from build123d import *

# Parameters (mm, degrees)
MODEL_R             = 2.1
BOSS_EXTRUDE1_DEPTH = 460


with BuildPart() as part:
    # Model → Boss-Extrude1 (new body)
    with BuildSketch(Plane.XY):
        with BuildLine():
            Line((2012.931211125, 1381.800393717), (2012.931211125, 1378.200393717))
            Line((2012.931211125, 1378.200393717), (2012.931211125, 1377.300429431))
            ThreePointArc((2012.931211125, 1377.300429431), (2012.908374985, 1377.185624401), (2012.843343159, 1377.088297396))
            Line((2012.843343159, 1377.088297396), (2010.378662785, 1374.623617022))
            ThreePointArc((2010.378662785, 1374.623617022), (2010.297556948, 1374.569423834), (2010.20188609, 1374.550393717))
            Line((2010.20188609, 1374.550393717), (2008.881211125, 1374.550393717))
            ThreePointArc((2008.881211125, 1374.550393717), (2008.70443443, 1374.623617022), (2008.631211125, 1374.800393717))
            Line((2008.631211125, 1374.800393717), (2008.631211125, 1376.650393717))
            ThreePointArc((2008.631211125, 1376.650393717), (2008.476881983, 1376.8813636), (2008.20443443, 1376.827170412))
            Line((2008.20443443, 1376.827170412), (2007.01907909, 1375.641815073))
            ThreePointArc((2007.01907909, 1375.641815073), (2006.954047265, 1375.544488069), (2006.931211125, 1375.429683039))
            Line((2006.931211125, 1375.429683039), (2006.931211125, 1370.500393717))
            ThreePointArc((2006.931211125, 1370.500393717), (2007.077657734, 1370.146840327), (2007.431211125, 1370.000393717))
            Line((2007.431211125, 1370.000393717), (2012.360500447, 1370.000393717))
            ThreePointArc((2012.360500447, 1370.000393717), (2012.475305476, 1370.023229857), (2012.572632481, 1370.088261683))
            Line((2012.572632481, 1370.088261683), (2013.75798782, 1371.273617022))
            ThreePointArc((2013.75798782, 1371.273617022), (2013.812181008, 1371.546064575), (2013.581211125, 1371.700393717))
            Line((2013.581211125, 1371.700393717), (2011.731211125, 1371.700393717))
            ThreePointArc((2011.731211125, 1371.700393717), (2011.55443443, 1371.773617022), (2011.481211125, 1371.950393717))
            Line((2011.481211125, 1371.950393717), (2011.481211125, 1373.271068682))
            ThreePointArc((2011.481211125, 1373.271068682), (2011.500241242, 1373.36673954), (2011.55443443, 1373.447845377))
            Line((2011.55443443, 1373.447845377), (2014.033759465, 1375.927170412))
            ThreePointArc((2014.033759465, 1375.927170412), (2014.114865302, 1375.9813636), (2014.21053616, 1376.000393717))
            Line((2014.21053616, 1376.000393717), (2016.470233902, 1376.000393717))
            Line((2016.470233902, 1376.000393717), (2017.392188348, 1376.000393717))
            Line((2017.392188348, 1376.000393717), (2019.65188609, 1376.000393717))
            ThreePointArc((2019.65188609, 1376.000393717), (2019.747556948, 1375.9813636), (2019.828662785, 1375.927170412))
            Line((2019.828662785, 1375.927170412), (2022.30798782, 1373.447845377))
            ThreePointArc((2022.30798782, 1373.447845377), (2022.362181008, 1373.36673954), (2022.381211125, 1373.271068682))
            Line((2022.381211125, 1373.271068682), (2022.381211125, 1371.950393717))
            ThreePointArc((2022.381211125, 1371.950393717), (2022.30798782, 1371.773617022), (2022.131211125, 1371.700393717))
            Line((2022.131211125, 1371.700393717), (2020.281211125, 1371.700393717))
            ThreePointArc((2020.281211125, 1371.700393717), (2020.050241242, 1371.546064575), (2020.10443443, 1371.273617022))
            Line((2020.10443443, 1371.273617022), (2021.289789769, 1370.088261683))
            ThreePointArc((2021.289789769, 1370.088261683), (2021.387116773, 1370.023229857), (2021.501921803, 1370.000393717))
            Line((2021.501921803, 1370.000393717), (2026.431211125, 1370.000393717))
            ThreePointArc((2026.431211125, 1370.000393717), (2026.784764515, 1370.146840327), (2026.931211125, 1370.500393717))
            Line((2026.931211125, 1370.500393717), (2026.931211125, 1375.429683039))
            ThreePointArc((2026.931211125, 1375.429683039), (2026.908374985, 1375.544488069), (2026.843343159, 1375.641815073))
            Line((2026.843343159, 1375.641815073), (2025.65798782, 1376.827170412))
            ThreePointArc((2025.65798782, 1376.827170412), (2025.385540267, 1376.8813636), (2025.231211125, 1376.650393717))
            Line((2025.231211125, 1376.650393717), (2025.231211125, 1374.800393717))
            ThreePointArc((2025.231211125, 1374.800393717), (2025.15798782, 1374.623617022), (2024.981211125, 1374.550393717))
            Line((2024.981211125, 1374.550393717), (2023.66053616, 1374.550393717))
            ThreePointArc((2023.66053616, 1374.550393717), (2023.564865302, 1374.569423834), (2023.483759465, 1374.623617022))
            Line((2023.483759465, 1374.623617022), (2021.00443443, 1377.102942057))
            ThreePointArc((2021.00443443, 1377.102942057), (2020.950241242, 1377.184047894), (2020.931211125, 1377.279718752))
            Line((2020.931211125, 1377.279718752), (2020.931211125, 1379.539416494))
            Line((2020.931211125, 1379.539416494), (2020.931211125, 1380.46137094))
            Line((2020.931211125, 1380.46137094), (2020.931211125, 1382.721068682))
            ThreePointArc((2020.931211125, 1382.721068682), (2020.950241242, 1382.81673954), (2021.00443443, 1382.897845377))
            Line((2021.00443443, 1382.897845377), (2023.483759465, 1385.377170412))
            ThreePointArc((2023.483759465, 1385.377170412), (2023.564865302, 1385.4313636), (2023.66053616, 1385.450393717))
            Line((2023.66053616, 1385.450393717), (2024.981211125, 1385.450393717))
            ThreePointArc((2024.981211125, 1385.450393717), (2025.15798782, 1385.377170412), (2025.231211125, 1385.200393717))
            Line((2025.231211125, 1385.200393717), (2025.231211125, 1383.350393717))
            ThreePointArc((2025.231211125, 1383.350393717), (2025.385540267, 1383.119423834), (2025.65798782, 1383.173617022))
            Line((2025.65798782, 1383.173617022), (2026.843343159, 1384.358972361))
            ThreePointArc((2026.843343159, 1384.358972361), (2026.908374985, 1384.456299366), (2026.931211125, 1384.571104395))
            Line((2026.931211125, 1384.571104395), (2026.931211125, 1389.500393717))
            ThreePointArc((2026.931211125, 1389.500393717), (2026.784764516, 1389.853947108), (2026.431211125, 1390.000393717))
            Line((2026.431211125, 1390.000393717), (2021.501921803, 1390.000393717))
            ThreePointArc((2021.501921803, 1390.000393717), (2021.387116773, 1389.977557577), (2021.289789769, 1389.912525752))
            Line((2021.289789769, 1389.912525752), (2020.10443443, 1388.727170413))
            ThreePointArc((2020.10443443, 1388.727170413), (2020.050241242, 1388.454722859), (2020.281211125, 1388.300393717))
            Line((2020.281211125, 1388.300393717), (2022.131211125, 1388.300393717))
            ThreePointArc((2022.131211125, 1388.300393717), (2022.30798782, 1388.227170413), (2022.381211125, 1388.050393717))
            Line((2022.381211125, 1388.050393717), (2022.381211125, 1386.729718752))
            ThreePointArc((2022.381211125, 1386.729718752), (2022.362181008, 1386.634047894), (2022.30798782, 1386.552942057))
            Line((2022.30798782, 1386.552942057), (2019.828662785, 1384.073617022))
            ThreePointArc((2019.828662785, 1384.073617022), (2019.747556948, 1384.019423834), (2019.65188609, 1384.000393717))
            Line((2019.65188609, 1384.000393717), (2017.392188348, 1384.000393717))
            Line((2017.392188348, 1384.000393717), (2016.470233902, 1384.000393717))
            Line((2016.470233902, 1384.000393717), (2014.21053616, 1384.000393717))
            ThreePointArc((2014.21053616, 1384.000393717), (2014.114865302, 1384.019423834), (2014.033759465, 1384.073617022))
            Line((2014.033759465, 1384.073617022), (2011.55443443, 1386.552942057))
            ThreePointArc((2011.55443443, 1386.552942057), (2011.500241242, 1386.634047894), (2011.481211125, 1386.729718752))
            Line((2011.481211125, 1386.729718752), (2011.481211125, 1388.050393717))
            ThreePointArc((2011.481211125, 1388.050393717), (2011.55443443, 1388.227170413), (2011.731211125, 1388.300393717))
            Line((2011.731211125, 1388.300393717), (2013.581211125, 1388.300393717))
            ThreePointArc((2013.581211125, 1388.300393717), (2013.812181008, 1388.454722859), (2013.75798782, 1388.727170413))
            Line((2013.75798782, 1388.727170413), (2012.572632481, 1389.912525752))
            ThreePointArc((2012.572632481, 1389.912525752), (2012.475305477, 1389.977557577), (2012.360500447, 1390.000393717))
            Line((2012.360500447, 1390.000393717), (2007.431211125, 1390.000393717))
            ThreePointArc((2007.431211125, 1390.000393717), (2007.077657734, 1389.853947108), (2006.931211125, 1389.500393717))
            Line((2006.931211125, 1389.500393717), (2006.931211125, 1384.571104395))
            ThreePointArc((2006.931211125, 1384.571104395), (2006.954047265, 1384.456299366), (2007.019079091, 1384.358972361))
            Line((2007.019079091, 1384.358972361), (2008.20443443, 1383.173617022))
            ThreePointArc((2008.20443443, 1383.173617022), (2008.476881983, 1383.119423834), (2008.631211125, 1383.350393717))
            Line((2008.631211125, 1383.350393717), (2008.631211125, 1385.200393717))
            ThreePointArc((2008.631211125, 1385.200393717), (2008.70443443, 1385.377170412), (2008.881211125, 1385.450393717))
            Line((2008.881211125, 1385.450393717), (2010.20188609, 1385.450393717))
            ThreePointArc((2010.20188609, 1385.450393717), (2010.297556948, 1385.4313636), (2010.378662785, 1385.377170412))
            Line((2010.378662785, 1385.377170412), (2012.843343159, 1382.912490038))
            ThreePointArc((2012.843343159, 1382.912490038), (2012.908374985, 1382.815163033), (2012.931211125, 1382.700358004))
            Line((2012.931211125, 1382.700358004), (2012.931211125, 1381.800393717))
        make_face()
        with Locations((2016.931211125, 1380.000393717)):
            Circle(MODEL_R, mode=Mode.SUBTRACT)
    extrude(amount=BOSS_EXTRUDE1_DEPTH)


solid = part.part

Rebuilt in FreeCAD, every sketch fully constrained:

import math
import FreeCAD as App
import Part
import Sketcher

doc = App.newDocument("Part")
body = doc.addObject("PartDesign::Body", "Body")

# Sketch on XY plane
sketch1 = body.newObject("Sketcher::SketchObject", "Sketch")
sketch1.AttachmentSupport = (doc.getObject("XY_Plane"), [""])
sketch1.MapMode = "FlatFace"
sketch1.addGeometry(Part.ArcOfCircle(Part.Circle(App.Vector(2012.631211, 1377.300429, 0), App.Vector(0, 0, 1), 0.3), math.radians(-45), math.radians(0)), False)
sketch1.addGeometry(Part.LineSegment(App.Vector(2012.843343, 1377.088297, 0), App.Vector(2010.378663, 1374.623617, 0)), False)
sketch1.addGeometry(Part.ArcOfCircle(Part.Circle(App.Vector(2010.201886, 1374.800394, 0), App.Vector(0, 0, 1), 0.25), math.radians(-90), math.radians(-45)), False)
sketch1.addGeometry(Part.LineSegment(App.Vector(2010.201886, 1374.550394, 0), App.Vector(2008.881211, 1374.550394, 0)), False)
sketch1.addGeometry(Part.ArcOfCircle(Part.Circle(App.Vector(2008.881211, 1374.800394, 0), App.Vector(0, 0, 1), 0.25), math.radians(-180), math.radians(-90)), False)
sketch1.addGeometry(Part.LineSegment(App.Vector(2008.631211, 1374.800394, 0), App.Vector(2008.631211, 1376.650394, 0)), False)
sketch1.addGeometry(Part.ArcOfCircle(Part.Circle(App.Vector(2008.381211, 1376.650394, 0), App.Vector(0, 0, 1), 0.25), math.radians(0), math.radians(135)), False)
sketch1.addGeometry(Part.LineSegment(App.Vector(2008.204434, 1376.82717, 0), App.Vector(2007.019079, 1375.641815, 0)), False)
sketch1.addGeometry(Part.ArcOfCircle(Part.Circle(App.Vector(2007.231211, 1375.429683, 0), App.Vector(0, 0, 1), 0.3), math.radians(135), math.radians(180)), False)
sketch1.addGeometry(Part.LineSegment(App.Vector(2006.931211, 1375.429683, 0), App.Vector(2006.931211, 1370.500394, 0)), False)
sketch1.addGeometry(Part.ArcOfCircle(Part.Circle(App.Vector(2007.431211, 1370.500394, 0), App.Vector(0, 0, 1), 0.5), math.radians(180), math.radians(270)), False)
sketch1.addGeometry(Part.LineSegment(App.Vector(2007.431211, 1370.000394, 0), App.Vector(2012.3605, 1370.000394, 0)), False)
sketch1.addGeometry(Part.ArcOfCircle(Part.Circle(App.Vector(2012.3605, 1370.300394, 0), App.Vector(0, 0, 1), 0.3), math.radians(-90), math.radians(-45)), False)
sketch1.addGeometry(Part.LineSegment(App.Vector(2012.572632, 1370.088262, 0), App.Vector(2013.757988, 1371.273617, 0)), False)
sketch1.addGeometry(Part.ArcOfCircle(Part.Circle(App.Vector(2013.581211, 1371.450394, 0), App.Vector(0, 0, 1), 0.25), math.radians(-45), math.radians(90)), False)
sketch1.addGeometry(Part.LineSegment(App.Vector(2013.581211, 1371.700394, 0), App.Vector(2011.731211, 1371.700394, 0)), False)
sketch1.addGeometry(Part.ArcOfCircle(Part.Circle(App.Vector(2011.731211, 1371.950394, 0), App.Vector(0, 0, 1), 0.25), math.radians(-180), math.radians(-90)), False)
sketch1.addGeometry(Part.LineSegment(App.Vector(2011.481211, 1371.950394, 0), App.Vector(2011.481211, 1373.271069, 0)), False)
sketch1.addGeometry(Part.ArcOfCircle(Part.Circle(App.Vector(2011.731211, 1373.271069, 0), App.Vector(0, 0, 1), 0.25), math.radians(135), math.radians(180)), False)
sketch1.addGeometry(Part.LineSegment(App.Vector(2011.554434, 1373.447845, 0), App.Vector(2014.033759, 1375.92717, 0)), False)
sketch1.addGeometry(Part.ArcOfCircle(Part.Circle(App.Vector(2014.210536, 1375.750394, 0), App.Vector(0, 0, 1), 0.25), math.radians(90), math.radians(135)), False)
sketch1.addGeometry(Part.LineSegment(App.Vector(2014.210536, 1376.000394, 0), App.Vector(2019.651886, 1376.000394, 0)), False)
sketch1.addGeometry(Part.ArcOfCircle(Part.Circle(App.Vector(2019.651886, 1375.750394, 0), App.Vector(0, 0, 1), 0.25), math.radians(45), math.radians(90)), False)
sketch1.addGeometry(Part.LineSegment(App.Vector(2019.828663, 1375.92717, 0), App.Vector(2022.307988, 1373.447845, 0)), False)
sketch1.addGeometry(Part.ArcOfCircle(Part.Circle(App.Vector(2022.131211, 1373.271069, 0), App.Vector(0, 0, 1), 0.25), math.radians(0), math.radians(45)), False)
sketch1.addGeometry(Part.LineSegment(App.Vector(2022.381211, 1373.271069, 0), App.Vector(2022.381211, 1371.950394, 0)), False)
sketch1.addGeometry(Part.ArcOfCircle(Part.Circle(App.Vector(2022.131211, 1371.950394, 0), App.Vector(0, 0, 1), 0.25), math.radians(-90), math.radians(0)), False)
sketch1.addGeometry(Part.LineSegment(App.Vector(2022.131211, 1371.700394, 0), App.Vector(2020.281211, 1371.700394, 0)), False)
sketch1.addGeometry(Part.ArcOfCircle(Part.Circle(App.Vector(2020.281211, 1371.450394, 0), App.Vector(0, 0, 1), 0.25), math.radians(90), math.radians(225)), False)
sketch1.addGeometry(Part.LineSegment(App.Vector(2020.104434, 1371.273617, 0), App.Vector(2021.28979, 1370.088262, 0)), False)
sketch1.addGeometry(Part.ArcOfCircle(Part.Circle(App.Vector(2021.501922, 1370.300394, 0), App.Vector(0, 0, 1), 0.3), math.radians(-135.000001), math.radians(-90)), False)
sketch1.addGeometry(Part.LineSegment(App.Vector(2021.501922, 1370.000394, 0), App.Vector(2026.431211, 1370.000394, 0)), False)
sketch1.addGeometry(Part.ArcOfCircle(Part.Circle(App.Vector(2026.431211, 1370.500394, 0), App.Vector(0, 0, 1), 0.5), math.radians(-90), math.radians(0)), False)
sketch1.addGeometry(Part.LineSegment(App.Vector(2026.931211, 1370.500394, 0), App.Vector(2026.931211, 1375.429683, 0)), False)
sketch1.addGeometry(Part.ArcOfCircle(Part.Circle(App.Vector(2026.631211, 1375.429683, 0), App.Vector(0, 0, 1), 0.3), math.radians(0), math.radians(45.000001)), False)
sketch1.addGeometry(Part.LineSegment(App.Vector(2026.843343, 1375.641815, 0), App.Vector(2025.657988, 1376.82717, 0)), False)
sketch1.addGeometry(Part.ArcOfCircle(Part.Circle(App.Vector(2025.481211, 1376.650394, 0), App.Vector(0, 0, 1), 0.25), math.radians(45), math.radians(180)), False)
sketch1.addGeometry(Part.LineSegment(App.Vector(2025.231211, 1376.650394, 0), App.Vector(2025.231211, 1374.800394, 0)), False)
sketch1.addGeometry(Part.ArcOfCircle(Part.Circle(App.Vector(2024.981211, 1374.800394, 0), App.Vector(0, 0, 1), 0.25), math.radians(-90), math.radians(0)), False)
sketch1.addGeometry(Part.LineSegment(App.Vector(2024.981211, 1374.550394, 0), App.Vector(2023.660536, 1374.550394, 0)), False)
sketch1.addGeometry(Part.ArcOfCircle(Part.Circle(App.Vector(2023.660536, 1374.800394, 0), App.Vector(0, 0, 1), 0.25), math.radians(-135), math.radians(-90)), False)
sketch1.addGeometry(Part.LineSegment(App.Vector(2023.483759, 1374.623617, 0), App.Vector(2021.004434, 1377.102942, 0)), False)
sketch1.addGeometry(Part.ArcOfCircle(Part.Circle(App.Vector(2021.181211, 1377.279719, 0), App.Vector(0, 0, 1), 0.25), math.radians(180), math.radians(225)), False)
sketch1.addGeometry(Part.LineSegment(App.Vector(2020.931211, 1377.279719, 0), App.Vector(2020.931211, 1382.721069, 0)), False)
sketch1.addGeometry(Part.ArcOfCircle(Part.Circle(App.Vector(2021.181211, 1382.721069, 0), App.Vector(0, 0, 1), 0.25), math.radians(135), math.radians(180)), False)
sketch1.addGeometry(Part.LineSegment(App.Vector(2021.004434, 1382.897845, 0), App.Vector(2023.483759, 1385.37717, 0)), False)
sketch1.addGeometry(Part.ArcOfCircle(Part.Circle(App.Vector(2023.660536, 1385.200394, 0), App.Vector(0, 0, 1), 0.25), math.radians(90), math.radians(135)), False)
sketch1.addGeometry(Part.LineSegment(App.Vector(2023.660536, 1385.450394, 0), App.Vector(2024.981211, 1385.450394, 0)), False)
sketch1.addGeometry(Part.ArcOfCircle(Part.Circle(App.Vector(2024.981211, 1385.200394, 0), App.Vector(0, 0, 1), 0.25), math.radians(0), math.radians(90)), False)
sketch1.addGeometry(Part.LineSegment(App.Vector(2025.231211, 1385.200394, 0), App.Vector(2025.231211, 1383.350394, 0)), False)
sketch1.addGeometry(Part.ArcOfCircle(Part.Circle(App.Vector(2025.481211, 1383.350394, 0), App.Vector(0, 0, 1), 0.25), math.radians(180), math.radians(315)), False)
sketch1.addGeometry(Part.LineSegment(App.Vector(2025.657988, 1383.173617, 0), App.Vector(2026.843343, 1384.358972, 0)), False)
sketch1.addGeometry(Part.ArcOfCircle(Part.Circle(App.Vector(2026.631211, 1384.571104, 0), App.Vector(0, 0, 1), 0.3), math.radians(-45), math.radians(0)), False)
sketch1.addGeometry(Part.LineSegment(App.Vector(2026.931211, 1384.571104, 0), App.Vector(2026.931211, 1389.500394, 0)), False)
sketch1.addGeometry(Part.ArcOfCircle(Part.Circle(App.Vector(2026.431211, 1389.500394, 0), App.Vector(0, 0, 1), 0.5), math.radians(0), math.radians(90)), False)
sketch1.addGeometry(Part.LineSegment(App.Vector(2026.431211, 1390.000394, 0), App.Vector(2021.501922, 1390.000394, 0)), False)
sketch1.addGeometry(Part.ArcOfCircle(Part.Circle(App.Vector(2021.501922, 1389.700394, 0), App.Vector(0, 0, 1), 0.3), math.radians(90), math.radians(135)), False)
sketch1.addGeometry(Part.LineSegment(App.Vector(2021.28979, 1389.912526, 0), App.Vector(2020.104434, 1388.72717, 0)), False)
sketch1.addGeometry(Part.ArcOfCircle(Part.Circle(App.Vector(2020.281211, 1388.550394, 0), App.Vector(0, 0, 1), 0.25), math.radians(135), math.radians(270)), False)
sketch1.addGeometry(Part.LineSegment(App.Vector(2020.281211, 1388.300394, 0), App.Vector(2022.131211, 1388.300394, 0)), False)
sketch1.addGeometry(Part.ArcOfCircle(Part.Circle(App.Vector(2022.131211, 1388.050394, 0), App.Vector(0, 0, 1), 0.25), math.radians(0), math.radians(90)), False)
sketch1.addGeometry(Part.LineSegment(App.Vector(2022.381211, 1388.050394, 0), App.Vector(2022.381211, 1386.729719, 0)), False)
sketch1.addGeometry(Part.ArcOfCircle(Part.Circle(App.Vector(2022.131211, 1386.729719, 0), App.Vector(0, 0, 1), 0.25), math.radians(-45), math.radians(0)), False)
sketch1.addGeometry(Part.LineSegment(App.Vector(2022.307988, 1386.552942, 0), App.Vector(2019.828663, 1384.073617, 0)), False)
sketch1.addGeometry(Part.ArcOfCircle(Part.Circle(App.Vector(2019.651886, 1384.250394, 0), App.Vector(0, 0, 1), 0.25), math.radians(-90), math.radians(-45)), False)
sketch1.addGeometry(Part.LineSegment(App.Vector(2019.651886, 1384.000394, 0), App.Vector(2014.210536, 1384.000394, 0)), False)
sketch1.addGeometry(Part.ArcOfCircle(Part.Circle(App.Vector(2014.210536, 1384.250394, 0), App.Vector(0, 0, 1), 0.25), math.radians(-135), math.radians(-90)), False)
sketch1.addGeometry(Part.LineSegment(App.Vector(2014.033759, 1384.073617, 0), App.Vector(2011.554434, 1386.552942, 0)), False)
sketch1.addGeometry(Part.ArcOfCircle(Part.Circle(App.Vector(2011.731211, 1386.729719, 0), App.Vector(0, 0, 1), 0.25), math.radians(180), math.radians(225)), False)
sketch1.addGeometry(Part.LineSegment(App.Vector(2011.481211, 1386.729719, 0), App.Vector(2011.481211, 1388.050394, 0)), False)
sketch1.addGeometry(Part.ArcOfCircle(Part.Circle(App.Vector(2011.731211, 1388.050394, 0), App.Vector(0, 0, 1), 0.25), math.radians(90), math.radians(180)), False)
sketch1.addGeometry(Part.LineSegment(App.Vector(2011.731211, 1388.300394, 0), App.Vector(2013.581211, 1388.300394, 0)), False)
sketch1.addGeometry(Part.ArcOfCircle(Part.Circle(App.Vector(2013.581211, 1388.550394, 0), App.Vector(0, 0, 1), 0.25), math.radians(-90), math.radians(45)), False)
sketch1.addGeometry(Part.LineSegment(App.Vector(2013.757988, 1388.72717, 0), App.Vector(2012.572632, 1389.912526, 0)), False)
sketch1.addGeometry(Part.ArcOfCircle(Part.Circle(App.Vector(2012.3605, 1389.700394, 0), App.Vector(0, 0, 1), 0.3), math.radians(45), math.radians(90)), False)
sketch1.addGeometry(Part.LineSegment(App.Vector(2012.3605, 1390.000394, 0), App.Vector(2007.431211, 1390.000394, 0)), False)
sketch1.addGeometry(Part.ArcOfCircle(Part.Circle(App.Vector(2007.431211, 1389.500394, 0), App.Vector(0, 0, 1), 0.5), math.radians(90), math.radians(180)), False)
sketch1.addGeometry(Part.LineSegment(App.Vector(2006.931211, 1389.500394, 0), App.Vector(2006.931211, 1384.571104, 0)), False)
sketch1.addGeometry(Part.ArcOfCircle(Part.Circle(App.Vector(2007.231211, 1384.571104, 0), App.Vector(0, 0, 1), 0.3), math.radians(180), math.radians(225)), False)
sketch1.addGeometry(Part.LineSegment(App.Vector(2007.019079, 1384.358972, 0), App.Vector(2008.204434, 1383.173617, 0)), False)
sketch1.addGeometry(Part.ArcOfCircle(Part.Circle(App.Vector(2008.381211, 1383.350394, 0), App.Vector(0, 0, 1), 0.25), math.radians(-135), math.radians(0)), False)
sketch1.addGeometry(Part.LineSegment(App.Vector(2008.631211, 1383.350394, 0), App.Vector(2008.631211, 1385.200394, 0)), False)
sketch1.addGeometry(Part.ArcOfCircle(Part.Circle(App.Vector(2008.881211, 1385.200394, 0), App.Vector(0, 0, 1), 0.25), math.radians(90), math.radians(180)), False)
sketch1.addGeometry(Part.LineSegment(App.Vector(2008.881211, 1385.450394, 0), App.Vector(2010.201886, 1385.450394, 0)), False)
sketch1.addGeometry(Part.ArcOfCircle(Part.Circle(App.Vector(2010.201886, 1385.200394, 0), App.Vector(0, 0, 1), 0.25), math.radians(45), math.radians(90)), False)
sketch1.addGeometry(Part.LineSegment(App.Vector(2010.378663, 1385.37717, 0), App.Vector(2012.843343, 1382.91249, 0)), False)
sketch1.addGeometry(Part.ArcOfCircle(Part.Circle(App.Vector(2012.631211, 1382.700358, 0), App.Vector(0, 0, 1), 0.3), math.radians(0), math.radians(45)), False)
sketch1.addGeometry(Part.LineSegment(App.Vector(2012.931211, 1382.700358, 0), App.Vector(2012.931211, 1377.300429, 0)), False)
sketch1.addGeometry(Part.Circle(App.Vector(2016.931211, 1380.000394, 0), App.Vector(0, 0, 1), 2.1), False)
sketch1.addConstraint(Sketcher.Constraint("Tangent", 0, 1, 1, 1))
sketch1.addConstraint(Sketcher.Constraint("Tangent", 1, 2, 2, 2))
sketch1.addConstraint(Sketcher.Constraint("Tangent", 2, 1, 3, 1))
sketch1.addConstraint(Sketcher.Constraint("Tangent", 3, 2, 4, 2))
sketch1.addConstraint(Sketcher.Constraint("Tangent", 4, 1, 5, 1))
sketch1.addConstraint(Sketcher.Constraint("Tangent", 5, 2, 6, 1))
sketch1.addConstraint(Sketcher.Constraint("Tangent", 6, 2, 7, 1))
sketch1.addConstraint(Sketcher.Constraint("Tangent", 7, 2, 8, 1))
sketch1.addConstraint(Sketcher.Constraint("Tangent", 8, 2, 9, 1))
sketch1.addConstraint(Sketcher.Constraint("Tangent", 9, 2, 10, 1))
sketch1.addConstraint(Sketcher.Constraint("Tangent", 10, 2, 11, 1))
sketch1.addConstraint(Sketcher.Constraint("Tangent", 11, 2, 12, 1))
sketch1.addConstraint(Sketcher.Constraint("Tangent", 12, 2, 13, 1))
sketch1.addConstraint(Sketcher.Constraint("Tangent", 13, 2, 14, 1))
sketch1.addConstraint(Sketcher.Constraint("Tangent", 14, 2, 15, 1))
sketch1.addConstraint(Sketcher.Constraint("Tangent", 15, 2, 16, 2))
sketch1.addConstraint(Sketcher.Constraint("Tangent", 16, 1, 17, 1))
sketch1.addConstraint(Sketcher.Constraint("Tangent", 17, 2, 18, 2))
sketch1.addConstraint(Sketcher.Constraint("Tangent", 18, 1, 19, 1))
sketch1.addConstraint(Sketcher.Constraint("Tangent", 19, 2, 20, 2))
sketch1.addConstraint(Sketcher.Constraint("Tangent", 20, 1, 21, 1))
sketch1.addConstraint(Sketcher.Constraint("Tangent", 21, 2, 22, 2))
sketch1.addConstraint(Sketcher.Constraint("Tangent", 22, 1, 23, 1))
sketch1.addConstraint(Sketcher.Constraint("Tangent", 23, 2, 24, 2))
sketch1.addConstraint(Sketcher.Constraint("Tangent", 24, 1, 25, 1))
sketch1.addConstraint(Sketcher.Constraint("Tangent", 25, 2, 26, 2))
sketch1.addConstraint(Sketcher.Constraint("Tangent", 26, 1, 27, 1))
sketch1.addConstraint(Sketcher.Constraint("Tangent", 27, 2, 28, 1))
sketch1.addConstraint(Sketcher.Constraint("Tangent", 28, 2, 29, 1))
sketch1.addConstraint(Sketcher.Constraint("Tangent", 29, 2, 30, 1))
sketch1.addConstraint(Sketcher.Constraint("Tangent", 30, 2, 31, 1))
sketch1.addConstraint(Sketcher.Constraint("Tangent", 31, 2, 32, 1))
sketch1.addConstraint(Sketcher.Constraint("Tangent", 32, 2, 33, 1))
sketch1.addConstraint(Sketcher.Constraint("Tangent", 33, 2, 34, 1))
sketch1.addConstraint(Sketcher.Constraint("Tangent", 34, 2, 35, 1))
sketch1.addConstraint(Sketcher.Constraint("Tangent", 35, 2, 36, 1))
sketch1.addConstraint(Sketcher.Constraint("Tangent", 36, 2, 37, 1))
sketch1.addConstraint(Sketcher.Constraint("Tangent", 37, 2, 38, 2))
sketch1.addConstraint(Sketcher.Constraint("Tangent", 38, 1, 39, 1))
sketch1.addConstraint(Sketcher.Constraint("Tangent", 39, 2, 40, 2))
sketch1.addConstraint(Sketcher.Constraint("Tangent", 40, 1, 41, 1))
sketch1.addConstraint(Sketcher.Constraint("Tangent", 41, 2, 42, 2))
sketch1.addConstraint(Sketcher.Constraint("Tangent", 42, 1, 43, 1))
sketch1.addConstraint(Sketcher.Constraint("Tangent", 43, 2, 44, 2))
sketch1.addConstraint(Sketcher.Constraint("Tangent", 44, 1, 45, 1))
sketch1.addConstraint(Sketcher.Constraint("Tangent", 45, 2, 46, 2))
sketch1.addConstraint(Sketcher.Constraint("Tangent", 46, 1, 47, 1))
sketch1.addConstraint(Sketcher.Constraint("Tangent", 47, 2, 48, 2))
sketch1.addConstraint(Sketcher.Constraint("Tangent", 48, 1, 49, 1))
sketch1.addConstraint(Sketcher.Constraint("Tangent", 49, 2, 50, 1))
sketch1.addConstraint(Sketcher.Constraint("Tangent", 50, 2, 51, 1))
sketch1.addConstraint(Sketcher.Constraint("Tangent", 51, 2, 52, 1))
sketch1.addConstraint(Sketcher.Constraint("Tangent", 52, 2, 53, 1))
sketch1.addConstraint(Sketcher.Constraint("Tangent", 53, 2, 54, 1))
sketch1.addConstraint(Sketcher.Constraint("Tangent", 54, 2, 55, 1))
sketch1.addConstraint(Sketcher.Constraint("Tangent", 55, 2, 56, 1))
sketch1.addConstraint(Sketcher.Constraint("Tangent", 56, 2, 57, 1))
sketch1.addConstraint(Sketcher.Constraint("Tangent", 57, 2, 58, 1))
sketch1.addConstraint(Sketcher.Constraint("Tangent", 58, 2, 59, 1))
sketch1.addConstraint(Sketcher.Constraint("Tangent", 59, 2, 60, 2))
sketch1.addConstraint(Sketcher.Constraint("Tangent", 60, 1, 61, 1))
sketch1.addConstraint(Sketcher.Constraint("Tangent", 61, 2, 62, 2))
sketch1.addConstraint(Sketcher.Constraint("Tangent", 62, 1, 63, 1))
sketch1.addConstraint(Sketcher.Constraint("Tangent", 63, 2, 64, 2))
sketch1.addConstraint(Sketcher.Constraint("Tangent", 64, 1, 65, 1))
sketch1.addConstraint(Sketcher.Constraint("Tangent", 65, 2, 66, 2))
sketch1.addConstraint(Sketcher.Constraint("Tangent", 66, 1, 67, 1))
sketch1.addConstraint(Sketcher.Constraint("Tangent", 67, 2, 68, 2))
sketch1.addConstraint(Sketcher.Constraint("Tangent", 68, 1, 69, 1))
sketch1.addConstraint(Sketcher.Constraint("Tangent", 69, 2, 70, 2))
sketch1.addConstraint(Sketcher.Constraint("Tangent", 70, 1, 71, 1))
sketch1.addConstraint(Sketcher.Constraint("Tangent", 71, 2, 72, 1))
sketch1.addConstraint(Sketcher.Constraint("Tangent", 72, 2, 73, 1))
sketch1.addConstraint(Sketcher.Constraint("Tangent", 73, 2, 74, 1))
sketch1.addConstraint(Sketcher.Constraint("Tangent", 74, 2, 75, 1))
sketch1.addConstraint(Sketcher.Constraint("Tangent", 75, 2, 76, 1))
sketch1.addConstraint(Sketcher.Constraint("Tangent", 76, 2, 77, 1))
sketch1.addConstraint(Sketcher.Constraint("Tangent", 77, 2, 78, 1))
sketch1.addConstraint(Sketcher.Constraint("Tangent", 78, 2, 79, 1))
sketch1.addConstraint(Sketcher.Constraint("Tangent", 79, 2, 80, 1))
sketch1.addConstraint(Sketcher.Constraint("Tangent", 80, 2, 81, 1))
sketch1.addConstraint(Sketcher.Constraint("Tangent", 81, 2, 82, 2))
sketch1.addConstraint(Sketcher.Constraint("Tangent", 82, 1, 83, 1))
sketch1.addConstraint(Sketcher.Constraint("Tangent", 83, 2, 84, 2))
sketch1.addConstraint(Sketcher.Constraint("Tangent", 84, 1, 85, 1))
sketch1.addConstraint(Sketcher.Constraint("Tangent", 85, 2, 86, 2))
sketch1.addConstraint(Sketcher.Constraint("Tangent", 86, 1, 87, 1))
sketch1.addConstraint(Sketcher.Constraint("Tangent", 87, 2, 0, 2))
sketch1.addConstraint(Sketcher.Constraint("Horizontal", 3))
sketch1.addConstraint(Sketcher.Constraint("Vertical", 5))
sketch1.addConstraint(Sketcher.Constraint("Vertical", 9))
sketch1.addConstraint(Sketcher.Constraint("Horizontal", 11))
sketch1.addConstraint(Sketcher.Constraint("Horizontal", 15))
sketch1.addConstraint(Sketcher.Constraint("Vertical", 17))
sketch1.addConstraint(Sketcher.Constraint("Horizontal", 21))
sketch1.addConstraint(Sketcher.Constraint("Vertical", 25))
sketch1.addConstraint(Sketcher.Constraint("Horizontal", 27))
sketch1.addConstraint(Sketcher.Constraint("Horizontal", 31))
sketch1.addConstraint(Sketcher.Constraint("Vertical", 33))
sketch1.addConstraint(Sketcher.Constraint("Vertical", 37))
sketch1.addConstraint(Sketcher.Constraint("Horizontal", 39))
sketch1.addConstraint(Sketcher.Constraint("Vertical", 43))
sketch1.addConstraint(Sketcher.Constraint("Horizontal", 47))
sketch1.addConstraint(Sketcher.Constraint("Vertical", 49))
sketch1.addConstraint(Sketcher.Constraint("Vertical", 53))
sketch1.addConstraint(Sketcher.Constraint("Horizontal", 55))
sketch1.addConstraint(Sketcher.Constraint("Horizontal", 59))
sketch1.addConstraint(Sketcher.Constraint("Vertical", 61))
sketch1.addConstraint(Sketcher.Constraint("Horizontal", 65))
sketch1.addConstraint(Sketcher.Constraint("Vertical", 69))
sketch1.addConstraint(Sketcher.Constraint("Horizontal", 71))
sketch1.addConstraint(Sketcher.Constraint("Horizontal", 75))
sketch1.addConstraint(Sketcher.Constraint("Vertical", 77))
sketch1.addConstraint(Sketcher.Constraint("Vertical", 81))
sketch1.addConstraint(Sketcher.Constraint("Horizontal", 83))
sketch1.addConstraint(Sketcher.Constraint("Vertical", 87))
sketch1.addConstraint(Sketcher.Constraint("Equal", 2, 4))
sketch1.addConstraint(Sketcher.Constraint("Equal", 4, 6))
sketch1.addConstraint(Sketcher.Constraint("Equal", 0, 8))
sketch1.addConstraint(Sketcher.Constraint("Equal", 8, 12))
sketch1.addConstraint(Sketcher.Constraint("Equal", 6, 14))
sketch1.addConstraint(Sketcher.Constraint("Equal", 14, 16))
sketch1.addConstraint(Sketcher.Constraint("Equal", 16, 18))
sketch1.addConstraint(Sketcher.Constraint("Equal", 18, 20))
sketch1.addConstraint(Sketcher.Constraint("Equal", 20, 22))
sketch1.addConstraint(Sketcher.Constraint("Equal", 22, 24))
sketch1.addConstraint(Sketcher.Constraint("Equal", 24, 26))
sketch1.addConstraint(Sketcher.Constraint("Equal", 26, 28))
sketch1.addConstraint(Sketcher.Constraint("Equal", 12, 30))
sketch1.addConstraint(Sketcher.Constraint("Equal", 10, 32))
sketch1.addConstraint(Sketcher.Constraint("Equal", 30, 34))
sketch1.addConstraint(Sketcher.Constraint("Equal", 28, 36))
sketch1.addConstraint(Sketcher.Constraint("Equal", 36, 38))
sketch1.addConstraint(Sketcher.Constraint("Equal", 38, 40))
sketch1.addConstraint(Sketcher.Constraint("Equal", 40, 42))
sketch1.addConstraint(Sketcher.Constraint("Equal", 42, 44))
sketch1.addConstraint(Sketcher.Constraint("Equal", 44, 46))
sketch1.addConstraint(Sketcher.Constraint("Equal", 46, 48))
sketch1.addConstraint(Sketcher.Constraint("Equal", 48, 50))
sketch1.addConstraint(Sketcher.Constraint("Equal", 34, 52))
sketch1.addConstraint(Sketcher.Constraint("Equal", 32, 54))
sketch1.addConstraint(Sketcher.Constraint("Equal", 52, 56))
sketch1.addConstraint(Sketcher.Constraint("Equal", 50, 58))
sketch1.addConstraint(Sketcher.Constraint("Equal", 58, 60))
sketch1.addConstraint(Sketcher.Constraint("Equal", 60, 62))
sketch1.addConstraint(Sketcher.Constraint("Equal", 62, 64))
sketch1.addConstraint(Sketcher.Constraint("Equal", 64, 66))
sketch1.addConstraint(Sketcher.Constraint("Equal", 66, 68))
sketch1.addConstraint(Sketcher.Constraint("Equal", 68, 70))
sketch1.addConstraint(Sketcher.Constraint("Equal", 70, 72))
sketch1.addConstraint(Sketcher.Constraint("Equal", 56, 74))
sketch1.addConstraint(Sketcher.Constraint("Equal", 54, 76))
sketch1.addConstraint(Sketcher.Constraint("Equal", 74, 78))
sketch1.addConstraint(Sketcher.Constraint("Equal", 72, 80))
sketch1.addConstraint(Sketcher.Constraint("Equal", 80, 82))
sketch1.addConstraint(Sketcher.Constraint("Equal", 82, 84))
sketch1.addConstraint(Sketcher.Constraint("Equal", 78, 86))
sketch1.addConstraint(Sketcher.Constraint("Parallel", 1, 7))
sketch1.addConstraint(Sketcher.Constraint("Parallel", 7, 13))
sketch1.addConstraint(Sketcher.Constraint("Parallel", 13, 19))
sketch1.addConstraint(Sketcher.Constraint("Perpendicular", 19, 23))
sketch1.addConstraint(Sketcher.Constraint("Parallel", 23, 29))
sketch1.addConstraint(Sketcher.Constraint("Parallel", 29, 35))
sketch1.addConstraint(Sketcher.Constraint("Parallel", 35, 41))
sketch1.addConstraint(Sketcher.Constraint("Perpendicular", 41, 45))
sketch1.addConstraint(Sketcher.Constraint("Parallel", 45, 51))
sketch1.addConstraint(Sketcher.Constraint("Parallel", 51, 57))
sketch1.addConstraint(Sketcher.Constraint("Parallel", 57, 63))
sketch1.addConstraint(Sketcher.Constraint("Perpendicular", 63, 67))
sketch1.addConstraint(Sketcher.Constraint("Parallel", 67, 73))
sketch1.addConstraint(Sketcher.Constraint("Parallel", 73, 79))
sketch1.addConstraint(Sketcher.Constraint("Parallel", 79, 85))
sketch1.addConstraint(Sketcher.Constraint("Horizontal", 18, 3, 24, 3))
sketch1.addConstraint(Sketcher.Constraint("Horizontal", 16, 3, 26, 3))
sketch1.addConstraint(Sketcher.Constraint("Horizontal", 12, 3, 30, 3))
sketch1.addConstraint(Sketcher.Constraint("Horizontal", 8, 3, 34, 3))
sketch1.addConstraint(Sketcher.Constraint("Horizontal", 6, 3, 36, 3))
sketch1.addConstraint(Sketcher.Constraint("Horizontal", 4, 3, 38, 3))
sketch1.addConstraint(Sketcher.Constraint("Horizontal", 62, 3, 68, 3))
sketch1.addConstraint(Sketcher.Constraint("Horizontal", 60, 3, 70, 3))
sketch1.addConstraint(Sketcher.Constraint("Horizontal", 56, 3, 74, 3))
sketch1.addConstraint(Sketcher.Constraint("Horizontal", 52, 3, 78, 3))
sketch1.addConstraint(Sketcher.Constraint("Horizontal", 50, 3, 80, 3))
sketch1.addConstraint(Sketcher.Constraint("Horizontal", 48, 3, 82, 3))
sketch1.addConstraint(Sketcher.Constraint("Horizontal", 19, 2, 22, 1))
sketch1.addConstraint(Sketcher.Constraint("Vertical", 40, 3, 46, 3))
sketch1.addConstraint(Sketcher.Constraint("Vertical", 38, 3, 48, 3))
sketch1.addConstraint(Sketcher.Constraint("Vertical", 34, 3, 52, 3))
sketch1.addConstraint(Sketcher.Constraint("Vertical", 30, 3, 56, 3))
sketch1.addConstraint(Sketcher.Constraint("Vertical", 28, 3, 58, 3))
sketch1.addConstraint(Sketcher.Constraint("Vertical", 26, 3, 60, 3))
sketch1.addConstraint(Sketcher.Constraint("Vertical", 22, 3, 64, 3))
sketch1.addConstraint(Sketcher.Constraint("Vertical", 20, 3, 66, 3))
sketch1.addConstraint(Sketcher.Constraint("Vertical", 14, 3, 72, 3))
sketch1.addConstraint(Sketcher.Constraint("Vertical", 10, 3, 76, 3))
sketch1.addConstraint(Sketcher.Constraint("Vertical", 2, 3, 84, 3))
sketch1.addConstraint(Sketcher.Constraint("Equal", 15, 27))
sketch1.addConstraint(Sketcher.Constraint("Equal", 11, 31))
sketch1.addConstraint(Sketcher.Constraint("Equal", 3, 39))
sketch1.addConstraint(Sketcher.Constraint("Equal", 71, 5))
sketch1.addConstraint(Sketcher.Constraint("Equal", 75, 9))
sketch1.addConstraint(Sketcher.Constraint("Equal", 83, 17))
sketch1.addConstraint(Sketcher.Constraint("Equal", 65, 43))
sketch1.addConstraint(Sketcher.Constraint("Equal", 37, 49))
sketch1.addConstraint(Sketcher.Constraint("Equal", 33, 53))
sketch1.addConstraint(Sketcher.Constraint("Equal", 25, 61))
sketch1.addConstraint(Sketcher.Constraint("Equal", 7, 13))
sketch1.addConstraint(Sketcher.Constraint("Equal", 23, 41))
sketch1.addConstraint(Sketcher.Constraint("Diameter", 88, 4.2))
sketch1.addConstraint(Sketcher.Constraint("Radius", 0, 0.3))
sketch1.addConstraint(Sketcher.Constraint("Radius", 10, 0.5))
sketch1.addConstraint(Sketcher.Constraint("Radius", 2, 0.25))
sketch1.addConstraint(Sketcher.Constraint("DistanceX", 15, 2, 15, 1, 1.85))
sketch1.addConstraint(Sketcher.Constraint("DistanceX", 11, 1, 11, 2, 4.929289))
sketch1.addConstraint(Sketcher.Constraint("DistanceX", 21, 1, 21, 2, 5.44135))
sketch1.addConstraint(Sketcher.Constraint("DistanceY", 87, 2, 87, 1, 5.399929))
sketch1.addConstraint(Sketcher.Constraint("DistanceX", -1, 1, 12, 3, 2012.3605))
sketch1.addConstraint(Sketcher.Constraint("DistanceX", 3, 2, 3, 1, 1.320675))
sketch1.addConstraint(Sketcher.Constraint("DistanceX", -1, 1, 0, 3, 2012.631211))
sketch1.addConstraint(Sketcher.Constraint("DistanceY", -1, 1, 0, 3, 1377.300429))
sketch1.addConstraint(Sketcher.Constraint("DistanceX", -1, 1, 4, 3, 2008.881211))
sketch1.addConstraint(Sketcher.Constraint("DistanceX", -1, 1, 88, 3, 2016.931211))
sketch1.addConstraint(Sketcher.Constraint("DistanceY", -1, 1, 88, 3, 1380.000394))
pad1 = body.newObject("PartDesign::Pad", "Pad")
pad1.Profile = sketch1
pad1.Length = 460

doc.recompute()
